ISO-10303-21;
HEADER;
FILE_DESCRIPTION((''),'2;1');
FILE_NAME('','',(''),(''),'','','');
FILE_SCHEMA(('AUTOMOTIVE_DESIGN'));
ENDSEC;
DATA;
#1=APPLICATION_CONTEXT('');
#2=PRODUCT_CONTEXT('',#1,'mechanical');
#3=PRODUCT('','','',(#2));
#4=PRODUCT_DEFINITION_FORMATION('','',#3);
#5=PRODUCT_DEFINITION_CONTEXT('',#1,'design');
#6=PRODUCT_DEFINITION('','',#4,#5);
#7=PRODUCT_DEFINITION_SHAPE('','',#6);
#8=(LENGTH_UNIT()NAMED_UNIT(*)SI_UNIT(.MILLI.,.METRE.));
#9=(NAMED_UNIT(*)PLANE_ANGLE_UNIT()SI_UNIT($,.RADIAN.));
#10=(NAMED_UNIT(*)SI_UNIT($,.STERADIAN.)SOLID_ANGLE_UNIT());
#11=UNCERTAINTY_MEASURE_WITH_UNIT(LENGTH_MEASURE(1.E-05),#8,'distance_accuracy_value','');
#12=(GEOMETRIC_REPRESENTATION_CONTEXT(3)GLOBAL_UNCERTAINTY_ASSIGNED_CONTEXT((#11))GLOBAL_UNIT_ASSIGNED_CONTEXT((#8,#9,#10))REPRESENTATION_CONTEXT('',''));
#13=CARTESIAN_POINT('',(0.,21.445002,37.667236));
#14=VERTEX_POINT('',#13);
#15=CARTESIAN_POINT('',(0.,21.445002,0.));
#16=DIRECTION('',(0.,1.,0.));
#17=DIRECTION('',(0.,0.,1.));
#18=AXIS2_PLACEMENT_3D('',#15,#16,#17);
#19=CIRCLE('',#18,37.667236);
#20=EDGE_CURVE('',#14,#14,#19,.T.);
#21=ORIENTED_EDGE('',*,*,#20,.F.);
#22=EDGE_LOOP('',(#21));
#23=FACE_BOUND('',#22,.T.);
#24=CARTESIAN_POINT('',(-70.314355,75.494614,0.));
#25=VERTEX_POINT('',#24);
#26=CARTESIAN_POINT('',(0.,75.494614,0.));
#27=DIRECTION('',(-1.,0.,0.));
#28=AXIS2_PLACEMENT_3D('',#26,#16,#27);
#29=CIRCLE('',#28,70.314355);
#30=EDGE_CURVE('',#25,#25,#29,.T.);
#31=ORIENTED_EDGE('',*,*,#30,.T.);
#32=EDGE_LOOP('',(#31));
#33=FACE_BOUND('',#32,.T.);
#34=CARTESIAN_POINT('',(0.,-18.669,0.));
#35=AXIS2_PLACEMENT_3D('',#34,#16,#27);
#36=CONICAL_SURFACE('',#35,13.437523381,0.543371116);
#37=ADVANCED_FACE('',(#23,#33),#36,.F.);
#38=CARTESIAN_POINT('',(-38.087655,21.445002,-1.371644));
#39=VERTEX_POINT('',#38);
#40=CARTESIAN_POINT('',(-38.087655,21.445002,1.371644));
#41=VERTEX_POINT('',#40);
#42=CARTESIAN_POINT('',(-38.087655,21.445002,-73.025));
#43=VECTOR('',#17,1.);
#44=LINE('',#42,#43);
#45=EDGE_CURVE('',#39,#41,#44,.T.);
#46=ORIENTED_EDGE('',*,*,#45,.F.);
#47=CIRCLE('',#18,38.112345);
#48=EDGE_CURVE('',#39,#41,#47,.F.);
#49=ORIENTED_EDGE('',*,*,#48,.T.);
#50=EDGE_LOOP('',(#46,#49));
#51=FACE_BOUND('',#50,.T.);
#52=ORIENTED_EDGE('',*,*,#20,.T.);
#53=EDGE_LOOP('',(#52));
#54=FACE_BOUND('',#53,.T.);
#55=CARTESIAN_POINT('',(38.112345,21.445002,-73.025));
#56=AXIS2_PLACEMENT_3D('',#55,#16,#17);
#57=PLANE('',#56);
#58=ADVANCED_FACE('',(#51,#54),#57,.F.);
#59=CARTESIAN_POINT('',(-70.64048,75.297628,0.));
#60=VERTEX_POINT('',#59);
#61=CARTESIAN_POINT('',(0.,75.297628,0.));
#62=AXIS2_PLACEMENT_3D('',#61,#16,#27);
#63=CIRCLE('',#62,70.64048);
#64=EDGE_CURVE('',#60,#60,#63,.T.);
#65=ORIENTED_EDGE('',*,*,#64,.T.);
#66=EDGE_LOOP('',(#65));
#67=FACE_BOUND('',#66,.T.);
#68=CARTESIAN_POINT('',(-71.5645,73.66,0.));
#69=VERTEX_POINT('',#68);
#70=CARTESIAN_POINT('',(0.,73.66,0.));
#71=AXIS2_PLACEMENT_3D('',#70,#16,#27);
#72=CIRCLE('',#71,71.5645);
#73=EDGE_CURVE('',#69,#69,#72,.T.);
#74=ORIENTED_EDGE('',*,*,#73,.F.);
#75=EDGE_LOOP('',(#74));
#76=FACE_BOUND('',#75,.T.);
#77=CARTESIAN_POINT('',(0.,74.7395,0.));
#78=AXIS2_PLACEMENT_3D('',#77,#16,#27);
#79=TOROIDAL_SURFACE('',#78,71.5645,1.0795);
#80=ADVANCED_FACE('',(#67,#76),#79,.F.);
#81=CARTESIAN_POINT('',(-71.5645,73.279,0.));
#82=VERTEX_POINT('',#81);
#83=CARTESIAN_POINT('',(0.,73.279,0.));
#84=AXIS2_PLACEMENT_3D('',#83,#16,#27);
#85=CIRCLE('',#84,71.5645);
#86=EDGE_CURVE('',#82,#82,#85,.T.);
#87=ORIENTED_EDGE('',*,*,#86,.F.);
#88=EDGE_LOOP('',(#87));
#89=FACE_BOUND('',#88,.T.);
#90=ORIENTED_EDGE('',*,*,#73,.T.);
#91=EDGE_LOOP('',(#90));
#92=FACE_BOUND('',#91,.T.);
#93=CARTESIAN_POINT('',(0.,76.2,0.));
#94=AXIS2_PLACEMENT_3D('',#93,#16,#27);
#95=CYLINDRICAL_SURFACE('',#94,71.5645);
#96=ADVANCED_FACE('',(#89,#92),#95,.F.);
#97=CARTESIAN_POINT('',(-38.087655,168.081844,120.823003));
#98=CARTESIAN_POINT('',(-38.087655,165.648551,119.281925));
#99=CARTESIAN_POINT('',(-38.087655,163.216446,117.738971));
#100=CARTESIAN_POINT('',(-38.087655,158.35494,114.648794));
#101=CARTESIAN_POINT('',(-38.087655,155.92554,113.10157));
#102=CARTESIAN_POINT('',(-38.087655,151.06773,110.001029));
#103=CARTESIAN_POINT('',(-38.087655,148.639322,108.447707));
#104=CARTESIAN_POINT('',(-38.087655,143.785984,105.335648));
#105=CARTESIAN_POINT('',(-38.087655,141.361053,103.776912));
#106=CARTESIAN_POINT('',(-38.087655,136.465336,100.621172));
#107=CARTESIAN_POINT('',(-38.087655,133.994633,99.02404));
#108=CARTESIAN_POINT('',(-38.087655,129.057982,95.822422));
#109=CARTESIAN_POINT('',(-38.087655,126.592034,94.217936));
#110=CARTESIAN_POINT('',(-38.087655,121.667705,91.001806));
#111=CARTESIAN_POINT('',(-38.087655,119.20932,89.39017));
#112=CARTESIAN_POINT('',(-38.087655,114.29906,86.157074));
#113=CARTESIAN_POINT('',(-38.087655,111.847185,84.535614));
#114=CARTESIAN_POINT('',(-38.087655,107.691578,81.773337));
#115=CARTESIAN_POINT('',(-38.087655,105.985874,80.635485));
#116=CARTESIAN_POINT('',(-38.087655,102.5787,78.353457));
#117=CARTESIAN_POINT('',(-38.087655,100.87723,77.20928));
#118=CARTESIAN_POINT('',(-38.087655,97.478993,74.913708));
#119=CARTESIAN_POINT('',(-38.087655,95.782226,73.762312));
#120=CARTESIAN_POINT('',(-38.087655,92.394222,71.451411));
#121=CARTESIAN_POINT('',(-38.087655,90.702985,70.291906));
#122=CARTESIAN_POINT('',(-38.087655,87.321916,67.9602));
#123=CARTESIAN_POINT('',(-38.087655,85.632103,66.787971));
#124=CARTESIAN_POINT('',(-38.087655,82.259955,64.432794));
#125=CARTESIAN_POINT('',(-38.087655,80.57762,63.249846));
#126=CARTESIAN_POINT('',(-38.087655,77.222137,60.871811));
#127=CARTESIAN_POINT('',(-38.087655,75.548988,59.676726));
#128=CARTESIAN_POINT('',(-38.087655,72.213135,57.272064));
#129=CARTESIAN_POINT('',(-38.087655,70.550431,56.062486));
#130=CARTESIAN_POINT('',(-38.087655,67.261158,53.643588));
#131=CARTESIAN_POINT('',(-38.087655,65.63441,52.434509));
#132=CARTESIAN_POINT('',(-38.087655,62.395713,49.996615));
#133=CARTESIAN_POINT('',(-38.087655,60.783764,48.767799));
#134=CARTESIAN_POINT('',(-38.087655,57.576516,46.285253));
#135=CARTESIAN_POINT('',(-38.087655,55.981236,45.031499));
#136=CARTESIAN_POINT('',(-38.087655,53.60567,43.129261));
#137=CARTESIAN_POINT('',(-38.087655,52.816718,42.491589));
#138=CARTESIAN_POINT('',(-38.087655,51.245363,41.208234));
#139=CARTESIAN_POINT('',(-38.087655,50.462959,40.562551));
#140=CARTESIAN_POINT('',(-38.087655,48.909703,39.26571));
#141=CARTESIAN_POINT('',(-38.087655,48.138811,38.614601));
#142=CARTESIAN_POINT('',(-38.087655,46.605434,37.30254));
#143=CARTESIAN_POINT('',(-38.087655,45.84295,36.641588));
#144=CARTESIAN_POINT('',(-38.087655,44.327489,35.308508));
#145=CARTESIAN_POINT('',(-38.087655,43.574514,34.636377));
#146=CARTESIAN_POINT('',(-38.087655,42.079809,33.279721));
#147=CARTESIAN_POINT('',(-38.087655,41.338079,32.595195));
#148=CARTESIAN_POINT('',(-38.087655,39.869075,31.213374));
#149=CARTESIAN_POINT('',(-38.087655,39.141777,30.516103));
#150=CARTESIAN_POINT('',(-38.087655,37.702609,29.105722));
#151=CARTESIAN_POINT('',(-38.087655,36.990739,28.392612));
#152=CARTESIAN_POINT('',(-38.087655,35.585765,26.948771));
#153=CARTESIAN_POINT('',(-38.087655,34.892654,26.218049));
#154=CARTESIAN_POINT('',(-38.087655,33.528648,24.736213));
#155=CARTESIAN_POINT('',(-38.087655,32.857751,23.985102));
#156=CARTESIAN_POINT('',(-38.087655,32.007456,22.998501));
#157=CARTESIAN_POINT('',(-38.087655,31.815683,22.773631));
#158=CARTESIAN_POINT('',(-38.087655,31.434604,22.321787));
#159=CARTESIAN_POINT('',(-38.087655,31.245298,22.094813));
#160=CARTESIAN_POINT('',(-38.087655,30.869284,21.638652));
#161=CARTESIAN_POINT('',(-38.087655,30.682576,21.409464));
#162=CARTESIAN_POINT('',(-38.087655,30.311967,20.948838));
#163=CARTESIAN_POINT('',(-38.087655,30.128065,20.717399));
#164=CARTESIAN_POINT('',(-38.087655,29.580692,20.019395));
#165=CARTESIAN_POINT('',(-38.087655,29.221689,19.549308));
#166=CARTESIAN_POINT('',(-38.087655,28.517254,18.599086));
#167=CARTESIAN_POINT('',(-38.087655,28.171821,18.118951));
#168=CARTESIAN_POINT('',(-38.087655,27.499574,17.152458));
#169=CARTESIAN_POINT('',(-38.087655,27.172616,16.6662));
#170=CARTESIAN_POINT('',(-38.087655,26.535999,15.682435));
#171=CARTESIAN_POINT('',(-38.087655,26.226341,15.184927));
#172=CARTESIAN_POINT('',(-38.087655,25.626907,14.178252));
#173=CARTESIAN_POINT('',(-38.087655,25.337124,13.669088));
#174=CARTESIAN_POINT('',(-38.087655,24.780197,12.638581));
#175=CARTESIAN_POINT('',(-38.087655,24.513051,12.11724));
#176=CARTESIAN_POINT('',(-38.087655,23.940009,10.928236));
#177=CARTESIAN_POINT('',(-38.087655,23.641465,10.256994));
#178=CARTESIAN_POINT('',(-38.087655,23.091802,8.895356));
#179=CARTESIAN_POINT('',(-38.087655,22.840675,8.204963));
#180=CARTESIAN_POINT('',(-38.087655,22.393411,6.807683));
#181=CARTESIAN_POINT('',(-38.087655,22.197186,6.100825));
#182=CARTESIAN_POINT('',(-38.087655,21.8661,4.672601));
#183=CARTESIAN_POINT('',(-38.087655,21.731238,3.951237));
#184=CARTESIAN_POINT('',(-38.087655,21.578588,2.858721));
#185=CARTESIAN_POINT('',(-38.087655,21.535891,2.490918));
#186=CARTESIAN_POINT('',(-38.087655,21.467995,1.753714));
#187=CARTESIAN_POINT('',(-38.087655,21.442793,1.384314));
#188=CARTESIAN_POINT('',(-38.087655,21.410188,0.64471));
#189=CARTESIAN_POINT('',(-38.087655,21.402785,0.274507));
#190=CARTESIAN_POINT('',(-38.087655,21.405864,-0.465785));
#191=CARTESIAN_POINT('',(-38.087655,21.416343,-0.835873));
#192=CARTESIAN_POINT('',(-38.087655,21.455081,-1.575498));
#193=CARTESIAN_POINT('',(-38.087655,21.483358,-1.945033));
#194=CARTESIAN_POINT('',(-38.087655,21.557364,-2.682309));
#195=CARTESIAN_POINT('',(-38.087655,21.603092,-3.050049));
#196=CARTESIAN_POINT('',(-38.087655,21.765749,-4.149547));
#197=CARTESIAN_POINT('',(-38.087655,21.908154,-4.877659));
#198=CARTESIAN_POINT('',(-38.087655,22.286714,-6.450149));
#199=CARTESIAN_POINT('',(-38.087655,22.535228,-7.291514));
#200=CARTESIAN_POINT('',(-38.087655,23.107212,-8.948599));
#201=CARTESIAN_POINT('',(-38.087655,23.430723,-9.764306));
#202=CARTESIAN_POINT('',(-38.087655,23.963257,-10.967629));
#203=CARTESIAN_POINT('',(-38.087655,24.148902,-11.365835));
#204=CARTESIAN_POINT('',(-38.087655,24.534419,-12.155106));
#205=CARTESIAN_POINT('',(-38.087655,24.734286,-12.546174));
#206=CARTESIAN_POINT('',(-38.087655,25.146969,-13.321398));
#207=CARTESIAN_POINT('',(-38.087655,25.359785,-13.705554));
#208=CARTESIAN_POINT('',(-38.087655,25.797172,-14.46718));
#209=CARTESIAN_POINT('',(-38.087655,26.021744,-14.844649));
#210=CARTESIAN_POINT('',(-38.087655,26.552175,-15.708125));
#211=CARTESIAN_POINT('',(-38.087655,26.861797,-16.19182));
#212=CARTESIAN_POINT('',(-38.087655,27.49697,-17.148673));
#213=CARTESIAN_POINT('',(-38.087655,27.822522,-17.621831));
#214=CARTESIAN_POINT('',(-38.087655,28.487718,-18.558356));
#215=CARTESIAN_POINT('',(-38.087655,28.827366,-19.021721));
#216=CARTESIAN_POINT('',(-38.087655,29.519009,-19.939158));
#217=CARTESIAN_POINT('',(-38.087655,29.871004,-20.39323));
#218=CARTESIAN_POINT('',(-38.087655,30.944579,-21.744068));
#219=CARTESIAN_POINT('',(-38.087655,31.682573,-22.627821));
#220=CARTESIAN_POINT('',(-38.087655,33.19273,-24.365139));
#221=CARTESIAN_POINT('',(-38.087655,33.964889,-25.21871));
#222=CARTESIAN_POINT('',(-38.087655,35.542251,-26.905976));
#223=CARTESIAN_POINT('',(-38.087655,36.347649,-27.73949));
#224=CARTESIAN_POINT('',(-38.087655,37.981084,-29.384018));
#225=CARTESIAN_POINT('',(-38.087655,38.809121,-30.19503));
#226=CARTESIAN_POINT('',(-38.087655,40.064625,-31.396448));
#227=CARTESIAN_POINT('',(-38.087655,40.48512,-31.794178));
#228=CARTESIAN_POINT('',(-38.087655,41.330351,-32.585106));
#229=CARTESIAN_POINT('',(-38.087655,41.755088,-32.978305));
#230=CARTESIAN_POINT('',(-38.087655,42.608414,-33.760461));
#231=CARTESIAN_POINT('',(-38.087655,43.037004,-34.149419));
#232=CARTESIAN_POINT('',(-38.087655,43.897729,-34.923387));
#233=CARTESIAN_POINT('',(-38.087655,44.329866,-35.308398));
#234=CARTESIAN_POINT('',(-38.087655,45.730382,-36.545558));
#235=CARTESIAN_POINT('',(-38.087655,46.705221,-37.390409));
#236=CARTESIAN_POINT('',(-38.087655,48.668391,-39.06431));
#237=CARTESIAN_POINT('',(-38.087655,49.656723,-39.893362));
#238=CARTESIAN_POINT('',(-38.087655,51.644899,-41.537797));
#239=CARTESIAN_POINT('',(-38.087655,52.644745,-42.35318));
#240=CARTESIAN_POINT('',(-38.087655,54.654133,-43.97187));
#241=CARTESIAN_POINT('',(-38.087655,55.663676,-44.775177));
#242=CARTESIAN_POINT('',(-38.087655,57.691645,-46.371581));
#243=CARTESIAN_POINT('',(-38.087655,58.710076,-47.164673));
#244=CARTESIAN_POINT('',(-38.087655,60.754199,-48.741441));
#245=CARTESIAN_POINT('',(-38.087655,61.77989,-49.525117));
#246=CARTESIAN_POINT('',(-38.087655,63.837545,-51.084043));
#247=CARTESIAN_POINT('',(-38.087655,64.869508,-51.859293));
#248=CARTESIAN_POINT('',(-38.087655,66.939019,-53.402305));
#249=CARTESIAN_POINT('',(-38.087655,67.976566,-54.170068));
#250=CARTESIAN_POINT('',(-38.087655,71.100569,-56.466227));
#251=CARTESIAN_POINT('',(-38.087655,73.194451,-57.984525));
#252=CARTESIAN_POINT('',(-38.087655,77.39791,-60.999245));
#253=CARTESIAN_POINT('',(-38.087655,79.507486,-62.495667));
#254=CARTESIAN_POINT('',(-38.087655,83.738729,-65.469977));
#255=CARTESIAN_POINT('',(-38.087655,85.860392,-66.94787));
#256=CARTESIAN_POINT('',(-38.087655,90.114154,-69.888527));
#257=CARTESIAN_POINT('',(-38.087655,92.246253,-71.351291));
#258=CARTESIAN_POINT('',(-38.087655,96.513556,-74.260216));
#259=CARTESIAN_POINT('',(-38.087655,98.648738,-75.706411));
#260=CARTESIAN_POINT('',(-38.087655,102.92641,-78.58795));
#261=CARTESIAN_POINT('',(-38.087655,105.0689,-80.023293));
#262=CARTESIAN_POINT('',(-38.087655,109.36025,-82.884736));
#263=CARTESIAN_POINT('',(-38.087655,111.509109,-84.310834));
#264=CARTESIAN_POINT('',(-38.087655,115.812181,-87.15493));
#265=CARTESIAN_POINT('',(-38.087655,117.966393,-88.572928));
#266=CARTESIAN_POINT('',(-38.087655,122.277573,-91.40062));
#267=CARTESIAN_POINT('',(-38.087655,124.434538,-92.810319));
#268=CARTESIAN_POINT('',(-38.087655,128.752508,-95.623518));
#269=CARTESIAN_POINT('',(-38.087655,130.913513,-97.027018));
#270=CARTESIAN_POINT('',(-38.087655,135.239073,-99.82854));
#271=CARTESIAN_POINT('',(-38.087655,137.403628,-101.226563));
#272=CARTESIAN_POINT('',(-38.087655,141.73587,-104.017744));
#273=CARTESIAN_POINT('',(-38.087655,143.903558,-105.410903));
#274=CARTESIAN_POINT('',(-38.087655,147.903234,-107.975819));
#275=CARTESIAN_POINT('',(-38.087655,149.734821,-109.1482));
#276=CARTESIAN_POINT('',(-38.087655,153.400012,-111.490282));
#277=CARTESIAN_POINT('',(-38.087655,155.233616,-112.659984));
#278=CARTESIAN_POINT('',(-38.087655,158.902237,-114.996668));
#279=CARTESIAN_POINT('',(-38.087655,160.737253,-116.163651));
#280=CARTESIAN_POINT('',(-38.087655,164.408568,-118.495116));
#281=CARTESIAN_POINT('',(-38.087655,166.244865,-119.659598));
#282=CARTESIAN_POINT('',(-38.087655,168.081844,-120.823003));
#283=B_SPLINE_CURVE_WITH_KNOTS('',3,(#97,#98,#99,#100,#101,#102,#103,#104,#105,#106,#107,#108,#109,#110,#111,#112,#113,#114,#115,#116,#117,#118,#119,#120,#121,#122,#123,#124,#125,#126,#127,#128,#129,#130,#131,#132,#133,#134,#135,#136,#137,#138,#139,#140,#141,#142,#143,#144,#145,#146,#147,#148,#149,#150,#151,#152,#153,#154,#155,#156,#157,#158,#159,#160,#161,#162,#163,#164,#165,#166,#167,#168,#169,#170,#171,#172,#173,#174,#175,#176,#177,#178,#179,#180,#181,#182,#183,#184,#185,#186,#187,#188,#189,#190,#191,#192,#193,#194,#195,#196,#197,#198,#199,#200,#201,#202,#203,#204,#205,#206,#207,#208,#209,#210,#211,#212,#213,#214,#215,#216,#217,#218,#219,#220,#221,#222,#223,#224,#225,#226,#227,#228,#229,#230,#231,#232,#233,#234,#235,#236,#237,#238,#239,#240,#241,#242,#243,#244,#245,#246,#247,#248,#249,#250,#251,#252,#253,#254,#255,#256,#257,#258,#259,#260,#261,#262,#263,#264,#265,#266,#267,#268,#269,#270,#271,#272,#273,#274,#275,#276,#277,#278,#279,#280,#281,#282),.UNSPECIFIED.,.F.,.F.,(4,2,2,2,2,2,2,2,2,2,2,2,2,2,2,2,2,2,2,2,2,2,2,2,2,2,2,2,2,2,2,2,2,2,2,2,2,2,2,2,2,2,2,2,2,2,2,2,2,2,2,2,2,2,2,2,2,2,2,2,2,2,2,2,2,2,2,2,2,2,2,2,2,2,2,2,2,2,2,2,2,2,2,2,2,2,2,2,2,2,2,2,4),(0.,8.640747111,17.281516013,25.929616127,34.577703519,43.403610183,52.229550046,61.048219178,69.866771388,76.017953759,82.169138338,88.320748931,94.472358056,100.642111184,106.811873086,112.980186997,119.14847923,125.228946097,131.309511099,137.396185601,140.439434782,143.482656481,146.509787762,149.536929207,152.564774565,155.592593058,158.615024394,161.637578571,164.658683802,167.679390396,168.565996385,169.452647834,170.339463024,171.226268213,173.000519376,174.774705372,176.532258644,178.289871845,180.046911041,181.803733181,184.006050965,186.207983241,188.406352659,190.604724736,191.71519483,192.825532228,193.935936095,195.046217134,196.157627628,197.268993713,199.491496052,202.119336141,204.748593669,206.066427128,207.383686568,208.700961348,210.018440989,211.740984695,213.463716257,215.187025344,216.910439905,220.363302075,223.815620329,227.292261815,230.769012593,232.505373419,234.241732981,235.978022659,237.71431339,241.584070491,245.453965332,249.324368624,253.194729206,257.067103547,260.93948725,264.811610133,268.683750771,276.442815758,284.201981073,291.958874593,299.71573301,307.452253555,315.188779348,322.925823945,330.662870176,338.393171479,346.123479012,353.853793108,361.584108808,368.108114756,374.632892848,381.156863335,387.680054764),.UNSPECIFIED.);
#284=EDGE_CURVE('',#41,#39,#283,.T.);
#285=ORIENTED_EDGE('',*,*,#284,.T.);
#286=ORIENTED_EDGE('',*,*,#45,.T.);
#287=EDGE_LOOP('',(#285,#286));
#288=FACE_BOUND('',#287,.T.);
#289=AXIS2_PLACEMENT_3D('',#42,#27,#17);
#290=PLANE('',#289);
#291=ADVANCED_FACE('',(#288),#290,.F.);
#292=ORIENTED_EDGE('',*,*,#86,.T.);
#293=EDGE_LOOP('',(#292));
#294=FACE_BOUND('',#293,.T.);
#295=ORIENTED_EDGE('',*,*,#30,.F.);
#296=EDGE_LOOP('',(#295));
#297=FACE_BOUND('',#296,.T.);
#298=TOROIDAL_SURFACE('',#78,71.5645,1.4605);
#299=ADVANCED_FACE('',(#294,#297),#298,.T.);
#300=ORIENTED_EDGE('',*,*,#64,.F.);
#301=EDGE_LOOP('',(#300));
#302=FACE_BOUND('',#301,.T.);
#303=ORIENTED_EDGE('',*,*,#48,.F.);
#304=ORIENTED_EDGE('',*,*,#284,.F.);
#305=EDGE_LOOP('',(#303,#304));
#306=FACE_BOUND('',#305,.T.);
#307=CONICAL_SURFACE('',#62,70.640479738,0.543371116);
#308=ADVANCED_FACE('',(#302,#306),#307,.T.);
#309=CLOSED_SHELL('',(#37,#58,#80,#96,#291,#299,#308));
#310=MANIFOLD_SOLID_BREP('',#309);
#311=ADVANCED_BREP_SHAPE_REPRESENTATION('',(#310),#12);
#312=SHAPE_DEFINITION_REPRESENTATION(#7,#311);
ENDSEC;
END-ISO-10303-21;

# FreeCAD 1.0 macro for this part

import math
import FreeCAD as App
import Part
import Sketcher
Q = App.Units.Quantity


def edges_at(feature, points):
    """Names of the edges that pass closest to the given points."""
    edges = feature.Shape.Edges
    near = lambda p: min(range(len(edges)), key=lambda i: edges[i].distToShape(Part.Vertex(*p))[0])
    return sorted({f"Edge{near(p) + 1}" for p in points})


def add_polygon(sketch, points):
    """Adds a closed chain of lines whose ends are joined by coincident constraints."""
    first, n = sketch.GeometryCount, len(points)
    for a, b in zip(points, points[1:] + points[:1]):
        sketch.addGeometry(Part.LineSegment(App.Vector(*a, 0), App.Vector(*b, 0)), False)
    for i in range(n):
        sketch.addConstraint(Sketcher.Constraint("Coincident", first + i, 2, first + (i + 1) % n, 1))

doc = App.newDocument("Part")
body = doc.addObject("PartDesign::Body", "Body")

sketch1 = body.newObject("Sketcher::SketchObject", "Sketch")
sketch1.AttachmentSupport = (doc.getObject("XY_Plane"), [""])
sketch1.MapMode = "FlatFace"
sketch1.addGeometry([
    Part.LineSegment(App.Vector(-71.5645, 73.279, 0), App.Vector(-71.5645, 73.66, 0)),
    Part.ArcOfCircle(Part.Circle(App.Vector(-71.5645, 74.7395, 0), App.Vector(0, 0, 1), 1.0795), math.radians(31.132872), math.radians(270)),
    Part.LineSegment(App.Vector(-70.64048, 75.297628, 0), App.Vector(-70.131863, 74.455577, 0)),
    Part.LineSegment(App.Vector(-70.131863, 74.455577, 0), App.Vector(-13.6525, -19.05, 0)),
    Part.LineSegment(App.Vector(-13.6525, -19.05, 0), App.Vector(-12.065, -19.05, 0)),
    Part.LineSegment(App.Vector(-12.065, -19.05, 0), App.Vector(-12.1031, -18.669, 0)),
    Part.LineSegment(App.Vector(-12.1031, -18.669, 0), App.Vector(-13.437523, -18.669, 0)),
    Part.LineSegment(App.Vector(-13.437523, -18.669, 0), App.Vector(-70.314355, 75.494614, 0)),
    Part.ArcOfCircle(Part.Circle(App.Vector(-71.5645, 74.7395, 0), App.Vector(0, 0, 1), 1.4605), math.radians(31.132872), math.radians(270)),
], False)
sketch1.addConstraint([
    Sketcher.Constraint("Coincident", 0, 2, 1, 2),
    Sketcher.Constraint("Tangent", 1, 1, 2, 1),
    Sketcher.Constraint("Coincident", 2, 2, 3, 1),
    Sketcher.Constraint("Coincident", 3, 2, 4, 1),
    Sketcher.Constraint("Coincident", 4, 2, 5, 1),
    Sketcher.Constraint("Coincident", 5, 2, 6, 1),
    Sketcher.Constraint("Coincident", 6, 2, 7, 1),
    Sketcher.Constraint("Tangent", 7, 2, 8, 1),
    Sketcher.Constraint("Coincident", 8, 2, 0, 1),
    Sketcher.Constraint("Vertical", 0),
    Sketcher.Constraint("Horizontal", 4),
    Sketcher.Constraint("Horizontal", 6),
    Sketcher.Constraint("Coincident", 8, 3, 1, 3),
    Sketcher.Constraint("Parallel", 2, 3),
    Sketcher.Constraint("Parallel", 3, 7),
    Sketcher.Constraint("Vertical", 8, 3, 0, 2),
    Sketcher.Constraint("DistanceY", -1, 1, 0, 2, Q("2.9 in")),
    Sketcher.Constraint("Radius", 1, Q("0.0425 in")),
    Sketcher.Constraint("Radius", 8, Q("0.0575 in")),
    Sketcher.Constraint("DistanceX", 4, 1, 4, 2, Q("0.0625 in")),
    Sketcher.Constraint("DistanceY", 3, 2, -1, 1, Q("0.75 in")),
    Sketcher.Constraint("DistanceX", 0, 2, 3, 2, Q("2.28 in")),
    Sketcher.Constraint("DistanceX", 4, 2, -1, 1, Q("0.475 in")),
    Sketcher.Constraint("DistanceY", 5, 2, -1, 1, Q("0.735 in")),
    Sketcher.Constraint("DistanceX", 3, 2, 5, 2, Q("0.061 in")),
    Sketcher.Constraint("Distance", 3, Q("109.23924 mm")),
])
revolution = body.newObject("PartDesign::Revolution", "Revolution")
revolution.Profile = sketch1
revolution.ReferenceAxis = (sketch1, ["V_Axis"])
revolution.Angle = 360

sketch2 = body.newObject("Sketcher::SketchObject", "Sketch001")
sketch2.AttachmentSupport = (doc.getObject("XY_Plane"), [""])
sketch2.MapMode = "FlatFace"
add_polygon(sketch2, [(-5.9671, -76.2), (-11.6821, -19.05), (-11.752975, -18.341249), (-13.635492, -18.341249), (-13.437523, -18.669), (-12.1031, -18.669), (-6.35, -76.2)])
sketch2.addConstraint([
    Sketcher.Constraint("Horizontal", 2),
    Sketcher.Constraint("Horizontal", 4),
    Sketcher.Constraint("Horizontal", 6),
    Sketcher.Constraint("Parallel", 0, 1),
    Sketcher.Constraint("Parallel", 1, 5),
    Sketcher.Constraint("DistanceY", 5, 2, -1, 1, Q("3 in")),
    Sketcher.Constraint("DistanceY", 0, 2, -1, 1, Q("0.75 in")),
    Sketcher.Constraint("DistanceX", 5, 2, -1, 1, Q("0.25 in")),
    Sketcher.Constraint("DistanceY", 3, 2, -1, 1, Q("0.735 in")),
    Sketcher.Constraint("DistanceX", 0, 2, 6, 2, Q("0.225 in")),
    Sketcher.Constraint("DistanceX", 6, 1, 6, 2, Q("0.3829 mm")),
    Sketcher.Constraint("Distance", 3, Q("0.3829 mm")),
    Sketcher.Constraint("DistanceX", 2, 2, 2, 1, Q("1.882517 mm")),
    Sketcher.Constraint("DistanceX", 4, 1, 4, 2, Q("1.334423 mm")),
])
revolution2 = body.newObject("PartDesign::Revolution", "Revolution001")
revolution2.Profile = sketch2
revolution2.ReferenceAxis = (sketch2, ["V_Axis"])
revolution2.Angle = 360
doc.recompute()

fillet = body.newObject("PartDesign::Fillet", "Fillet")
fillet.Base = (revolution2, edges_at(revolution2, [(13.652, -19.05, 0)]))
fillet.Radius = Q("0.1 in")

sketch3 = body.newObject("Sketcher::SketchObject", "Sketch002")
sketch3.AttachmentSupport = (doc.getObject("XY_Plane"), [""])
sketch3.MapMode = "FlatFace"
add_polygon(sketch3, [(-38.087655, 21.445002), (-38.087655, -92.854998), (38.112345, -92.854998), (38.112345, 21.445002)])
sketch3.addConstraint([
    Sketcher.Constraint("Vertical", 0),
    Sketcher.Constraint("Horizontal", 1),
    Sketcher.Constraint("Vertical", 2),
    Sketcher.Constraint("Horizontal", 3),
    Sketcher.Constraint("DistanceX", 1, 1, 1, 2, Q("3 in")),
    Sketcher.Constraint("DistanceY", 0, 2, 0, 1, Q("4.5 in")),
    Sketcher.Constraint("DistanceX", 0, 2, -1, 1, Q("38.087655 mm")),
    Sketcher.Constraint("DistanceY", 0, 2, -1, 1, Q("92.854998 mm")),
])
pocket1 = body.newObject("PartDesign::Pocket", "Pocket")
pocket1.Profile = sketch3
pocket1.Type = "ThroughAll"
pocket1.Midplane = True

doc.recompute()
